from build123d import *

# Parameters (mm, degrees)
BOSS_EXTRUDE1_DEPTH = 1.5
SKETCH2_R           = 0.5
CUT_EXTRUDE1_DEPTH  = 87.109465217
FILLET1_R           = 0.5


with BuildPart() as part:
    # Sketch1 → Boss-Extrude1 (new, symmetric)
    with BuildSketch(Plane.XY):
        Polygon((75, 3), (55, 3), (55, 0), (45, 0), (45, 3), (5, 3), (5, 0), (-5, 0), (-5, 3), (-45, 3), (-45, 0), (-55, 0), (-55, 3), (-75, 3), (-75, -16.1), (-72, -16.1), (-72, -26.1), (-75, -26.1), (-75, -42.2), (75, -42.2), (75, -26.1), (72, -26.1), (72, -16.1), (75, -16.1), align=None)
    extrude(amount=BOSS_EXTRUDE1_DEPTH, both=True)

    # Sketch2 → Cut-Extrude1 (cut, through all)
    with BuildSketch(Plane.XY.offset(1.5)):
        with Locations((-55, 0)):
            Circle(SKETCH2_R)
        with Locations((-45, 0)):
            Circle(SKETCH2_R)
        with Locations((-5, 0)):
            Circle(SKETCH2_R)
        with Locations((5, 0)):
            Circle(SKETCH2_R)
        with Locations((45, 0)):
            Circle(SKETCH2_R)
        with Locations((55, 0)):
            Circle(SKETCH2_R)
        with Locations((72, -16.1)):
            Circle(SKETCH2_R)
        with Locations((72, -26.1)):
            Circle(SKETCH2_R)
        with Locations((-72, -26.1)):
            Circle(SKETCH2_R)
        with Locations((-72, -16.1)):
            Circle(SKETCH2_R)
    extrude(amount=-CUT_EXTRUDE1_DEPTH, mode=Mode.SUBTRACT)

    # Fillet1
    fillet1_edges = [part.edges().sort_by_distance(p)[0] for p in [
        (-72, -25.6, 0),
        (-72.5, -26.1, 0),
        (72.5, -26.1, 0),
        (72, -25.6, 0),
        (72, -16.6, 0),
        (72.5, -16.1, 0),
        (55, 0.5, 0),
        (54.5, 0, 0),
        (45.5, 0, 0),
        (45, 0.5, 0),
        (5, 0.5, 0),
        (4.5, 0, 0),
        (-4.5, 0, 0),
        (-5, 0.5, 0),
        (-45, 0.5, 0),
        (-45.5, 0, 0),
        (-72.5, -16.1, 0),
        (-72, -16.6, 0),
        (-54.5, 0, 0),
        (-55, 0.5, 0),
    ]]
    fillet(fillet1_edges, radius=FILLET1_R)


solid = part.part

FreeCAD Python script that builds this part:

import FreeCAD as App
import Part
import Sketcher
Q = App.Units.Quantity


def edges_at(feature, points):
    """Names of the edges that pass closest to the given points."""
    edges = feature.Shape.Edges
    near = lambda p: min(range(len(edges)), key=lambda i: edges[i].distToShape(Part.Vertex(*p))[0])
    return sorted({f"Edge{near(p) + 1}" for p in points})


def add_polygon(sketch, points):
    """Adds a closed chain of lines whose ends are joined by coincident constraints."""
    first, n = sketch.GeometryCount, len(points)
    for a, b in zip(points, points[1:] + points[:1]):
        sketch.addGeometry(Part.LineSegment(App.Vector(*a, 0), App.Vector(*b, 0)), False)
    for i in range(n):
        sketch.addConstraint(Sketcher.Constraint("Coincident", first + i, 2, first + (i + 1) % n, 1))

doc = App.newDocument("Part")
params = doc.addObject("Spreadsheet::Sheet", "Params")
for row, (alias, value) in enumerate([
    ("sketch1_width", "20 mm"),
    ("sketch1_width2", "10 mm"),
    ("sketch1_width3", "40 mm"),
    ("sketch1_width4", "3 mm"),
    ("sketch1_height", "19.1 mm"),
    ("pad1_length", "3 mm"),
    ("sketch2_diameter", "1 mm"),
    ("fillet_radius", "0.5 mm"),
], start=1):
    params.set(f"A{row}", alias)
    params.set(f"B{row}", "=" + value)
    params.setAlias(f"B{row}", alias)

body = doc.addObject("PartDesign::Body", "Body")

# Sketch on XY plane
sketch1 = body.newObject("Sketcher::SketchObject", "Sketch")
sketch1.AttachmentSupport = (doc.getObject("XY_Plane"), [""])
sketch1.MapMode = "FlatFace"
add_polygon(sketch1, [(75, 3), (55, 3), (55, 0), (45, 0), (45, 3), (5, 3), (5, 0), (-5, 0), (-5, 3), (-45, 3), (-45, 0), (-55, 0), (-55, 3), (-75, 3), (-75, -16.1), (-72, -16.1), (-72, -26.1), (-75, -26.1), (-75, -42.2), (75, -42.2), (75, -26.1), (72, -26.1), (72, -16.1), (75, -16.1)])  # lines 0-23
sketch1.addConstraint(Sketcher.Constraint("Horizontal", 0))
sketch1.addConstraint(Sketcher.Constraint("Vertical", 1))
sketch1.addConstraint(Sketcher.Constraint("Horizontal", 2))
sketch1.addConstraint(Sketcher.Constraint("Vertical", 3))
sketch1.addConstraint(Sketcher.Constraint("Horizontal", 4))
sketch1.addConstraint(Sketcher.Constraint("Vertical", 5))
sketch1.addConstraint(Sketcher.Constraint("Horizontal", 6))
sketch1.addConstraint(Sketcher.Constraint("Vertical", 7))
sketch1.addConstraint(Sketcher.Constraint("Horizontal", 8))
sketch1.addConstraint(Sketcher.Constraint("Vertical", 9))
sketch1.addConstraint(Sketcher.Constraint("Horizontal", 10))
sketch1.addConstraint(Sketcher.Constraint("Vertical", 11))
sketch1.addConstraint(Sketcher.Constraint("Horizontal", 12))
sketch1.addConstraint(Sketcher.Constraint("Vertical", 13))
sketch1.addConstraint(Sketcher.Constraint("Horizontal", 14))
sketch1.addConstraint(Sketcher.Constraint("Vertical", 15))
sketch1.addConstraint(Sketcher.Constraint("Horizontal", 16))
sketch1.addConstraint(Sketcher.Constraint("Vertical", 17))
sketch1.addConstraint(Sketcher.Constraint("Horizontal", 18))
sketch1.addConstraint(Sketcher.Constraint("Vertical", 19))
sketch1.addConstraint(Sketcher.Constraint("Horizontal", 20))
sketch1.addConstraint(Sketcher.Constraint("Vertical", 21))
sketch1.addConstraint(Sketcher.Constraint("Horizontal", 22))
sketch1.addConstraint(Sketcher.Constraint("Vertical", 23))
sketch1.addConstraint(Sketcher.Constraint("Symmetric", 5, 2, 6, 2, -1, 1))
sketch1.addConstraint(Sketcher.Constraint("Symmetric", 2, 2, 9, 2, -1, 1))
sketch1.addConstraint(Sketcher.Constraint("Symmetric", 1, 2, 10, 2, -2))
sketch1.addConstraint(Sketcher.Constraint("Symmetric", 16, 2, 19, 2, -2))
sketch1.addConstraint(Sketcher.Constraint("Symmetric", 14, 2, 21, 2, -2))
sketch1.addConstraint(Sketcher.Constraint("Symmetric", 12, 2, 23, 2, -2))
sketch1.addConstraint(Sketcher.Constraint("Horizontal", 0, 2, 3, 2))
sketch1.addConstraint(Sketcher.Constraint("Horizontal", 4, 2, 7, 2))
sketch1.addConstraint(Sketcher.Constraint("Vertical", 13, 2, 16, 2))
sketch1.addConstraint(Sketcher.Constraint("Equal", 2, 6))
sketch1.addConstraint(Sketcher.Constraint("Equal", 22, 1))
sketch1.addConstraint(Sketcher.Constraint("Equal", 10, 15))
sketch1.addConstraint(Sketcher.Constraint("DistanceX", 0, 2, 0, 1, Q("20 mm")))
sketch1.addConstraint(Sketcher.Constraint("DistanceX", 2, 2, 2, 1, Q("10 mm")))
sketch1.addConstraint(Sketcher.Constraint("DistanceX", 4, 2, 4, 1, Q("40 mm")))
sketch1.addConstraint(Sketcher.Constraint("DistanceX", 14, 1, 14, 2, Q("3 mm")))
sketch1.addConstraint(Sketcher.Constraint("DistanceY", 13, 2, 13, 1, Q("19.1 mm")))
sketch1.addConstraint(Sketcher.Constraint("DistanceY", 17, 2, 17, 1, Q("16.1 mm")))
sketch1.setExpression("Constraints[60]", "Params.sketch1_width")
sketch1.setExpression("Constraints[61]", "Params.sketch1_width2")
sketch1.setExpression("Constraints[62]", "Params.sketch1_width3")
sketch1.setExpression("Constraints[63]", "Params.sketch1_width4")
sketch1.setExpression("Constraints[64]", "Params.sketch1_height")
pad1 = body.newObject("PartDesign::Pad", "Pad")
pad1.Profile = sketch1
pad1.setExpression("Length", "Params.pad1_length")
pad1.Midplane = True

# Sketch on XY plane
sketch2 = body.newObject("Sketcher::SketchObject", "Sketch001")
sketch2.AttachmentSupport = (doc.getObject("XY_Plane"), [""])
sketch2.MapMode = "FlatFace"
sketch2.AttachmentOffset = App.Placement(App.Vector(0, 0, 1.5), App.Rotation())
sketch2.addGeometry(Part.Circle(App.Vector(-55, 0, 0), App.Vector(0, 0, 1), 0.5), False)
sketch2.addGeometry(Part.Circle(App.Vector(-45, 0, 0), App.Vector(0, 0, 1), 0.5), False)
sketch2.addGeometry(Part.Circle(App.Vector(-5, 0, 0), App.Vector(0, 0, 1), 0.5), False)
sketch2.addGeometry(Part.Circle(App.Vector(5, 0, 0), App.Vector(0, 0, 1), 0.5), False)
sketch2.addGeometry(Part.Circle(App.Vector(45, 0, 0), App.Vector(0, 0, 1), 0.5), False)
sketch2.addGeometry(Part.Circle(App.Vector(55, 0, 0), App.Vector(0, 0, 1), 0.5), False)
sketch2.addGeometry(Part.Circle(App.Vector(72, -16.1, 0), App.Vector(0, 0, 1), 0.5), False)
sketch2.addGeometry(Part.Circle(App.Vector(72, -26.1, 0), App.Vector(0, 0, 1), 0.5), False)
sketch2.addGeometry(Part.Circle(App.Vector(-72, -26.1, 0), App.Vector(0, 0, 1), 0.5), False)
sketch2.addGeometry(Part.Circle(App.Vector(-72, -16.1, 0), App.Vector(0, 0, 1), 0.5), False)
sketch2.addConstraint(Sketcher.Constraint("Equal", 0, 1))
sketch2.addConstraint(Sketcher.Constraint("Equal", 1, 2))
sketch2.addConstraint(Sketcher.Constraint("Equal", 2, 3))
sketch2.addConstraint(Sketcher.Constraint("Equal", 3, 4))
sketch2.addConstraint(Sketcher.Constraint("Equal", 4, 5))
sketch2.addConstraint(Sketcher.Constraint("Equal", 5, 6))
sketch2.addConstraint(Sketcher.Constraint("Equal", 6, 7))
sketch2.addConstraint(Sketcher.Constraint("Equal", 7, 8))
sketch2.addConstraint(Sketcher.Constraint("Equal", 8, 9))
sketch2.addConstraint(Sketcher.Constraint("Symmetric", 2, 3, 3, 3, -1, 1))
sketch2.addConstraint(Sketcher.Constraint("Symmetric", 1, 3, 4, 3, -1, 1))
sketch2.addConstraint(Sketcher.Constraint("Symmetric", 0, 3, 5, 3, -1, 1))
sketch2.addConstraint(Sketcher.Constraint("Symmetric", 7, 3, 8, 3, -2))
sketch2.addConstraint(Sketcher.Constraint("Symmetric", 6, 3, 9, 3, -2))
sketch2.addConstraint(Sketcher.Constraint("PointOnObject", 0, 3, -1))
sketch2.addConstraint(Sketcher.Constraint("PointOnObject", 1, 3, -1))
sketch2.addConstraint(Sketcher.Constraint("PointOnObject", 2, 3, -1))
sketch2.addConstraint(Sketcher.Constraint("Vertical", 6, 3, 7, 3))
sketch2.addConstraint(Sketcher.Constraint("Diameter", 0, Q("1 mm")))
sketch2.addConstraint(Sketcher.Constraint("DistanceX", 0, 3, -1, 1, Q("55 mm")))
sketch2.addConstraint(Sketcher.Constraint("DistanceX", 1, 3, -1, 1, Q("45 mm")))
sketch2.addConstraint(Sketcher.Constraint("DistanceX", 2, 3, -1, 1, Q("5 mm")))
sketch2.addConstraint(Sketcher.Constraint("DistanceX", -1, 1, 6, 3, Q("72 mm")))
sketch2.addConstraint(Sketcher.Constraint("DistanceY", 7, 3, 6, 3, Q("10 mm")))
sketch2.addConstraint(Sketcher.Constraint("DistanceY", 6, 3, -1, 1, Q("16.1 mm")))
sketch2.setExpression("Constraints[18]", "Params.sketch2_diameter")
pocket1 = body.newObject("PartDesign::Pocket", "Pocket")
pocket1.Profile = sketch2
pocket1.Type = "ThroughAll"
doc.recompute()

fillet = body.newObject("PartDesign::Fillet", "Fillet")
fillet.Base = (pocket1, edges_at(pocket1, [
    (-72, -25.6, 0),
    (-72.5, -26.1, 0),
    (72.5, -26.1, 0),
    (72, -25.6, 0),
    (72, -16.6, 0),
    (72.5, -16.1, 0),
    (55, 0.5, 0),
    (54.5, 0, 0),
    (45.5, 0, 0),
    (45, 0.5, 0),
    (5, 0.5, 0),
    (4.5, 0, 0),
    (-4.5, 0, 0),
    (-5, 0.5, 0),
    (-45, 0.5, 0),
    (-45.5, 0, 0),
    (-72.5, -16.1, 0),
    (-72, -16.6, 0),
    (-54.5, 0, 0),
    (-55, 0.5, 0),
]))
fillet.setExpression("Radius", "Params.fillet_radius")

doc.recompute()
